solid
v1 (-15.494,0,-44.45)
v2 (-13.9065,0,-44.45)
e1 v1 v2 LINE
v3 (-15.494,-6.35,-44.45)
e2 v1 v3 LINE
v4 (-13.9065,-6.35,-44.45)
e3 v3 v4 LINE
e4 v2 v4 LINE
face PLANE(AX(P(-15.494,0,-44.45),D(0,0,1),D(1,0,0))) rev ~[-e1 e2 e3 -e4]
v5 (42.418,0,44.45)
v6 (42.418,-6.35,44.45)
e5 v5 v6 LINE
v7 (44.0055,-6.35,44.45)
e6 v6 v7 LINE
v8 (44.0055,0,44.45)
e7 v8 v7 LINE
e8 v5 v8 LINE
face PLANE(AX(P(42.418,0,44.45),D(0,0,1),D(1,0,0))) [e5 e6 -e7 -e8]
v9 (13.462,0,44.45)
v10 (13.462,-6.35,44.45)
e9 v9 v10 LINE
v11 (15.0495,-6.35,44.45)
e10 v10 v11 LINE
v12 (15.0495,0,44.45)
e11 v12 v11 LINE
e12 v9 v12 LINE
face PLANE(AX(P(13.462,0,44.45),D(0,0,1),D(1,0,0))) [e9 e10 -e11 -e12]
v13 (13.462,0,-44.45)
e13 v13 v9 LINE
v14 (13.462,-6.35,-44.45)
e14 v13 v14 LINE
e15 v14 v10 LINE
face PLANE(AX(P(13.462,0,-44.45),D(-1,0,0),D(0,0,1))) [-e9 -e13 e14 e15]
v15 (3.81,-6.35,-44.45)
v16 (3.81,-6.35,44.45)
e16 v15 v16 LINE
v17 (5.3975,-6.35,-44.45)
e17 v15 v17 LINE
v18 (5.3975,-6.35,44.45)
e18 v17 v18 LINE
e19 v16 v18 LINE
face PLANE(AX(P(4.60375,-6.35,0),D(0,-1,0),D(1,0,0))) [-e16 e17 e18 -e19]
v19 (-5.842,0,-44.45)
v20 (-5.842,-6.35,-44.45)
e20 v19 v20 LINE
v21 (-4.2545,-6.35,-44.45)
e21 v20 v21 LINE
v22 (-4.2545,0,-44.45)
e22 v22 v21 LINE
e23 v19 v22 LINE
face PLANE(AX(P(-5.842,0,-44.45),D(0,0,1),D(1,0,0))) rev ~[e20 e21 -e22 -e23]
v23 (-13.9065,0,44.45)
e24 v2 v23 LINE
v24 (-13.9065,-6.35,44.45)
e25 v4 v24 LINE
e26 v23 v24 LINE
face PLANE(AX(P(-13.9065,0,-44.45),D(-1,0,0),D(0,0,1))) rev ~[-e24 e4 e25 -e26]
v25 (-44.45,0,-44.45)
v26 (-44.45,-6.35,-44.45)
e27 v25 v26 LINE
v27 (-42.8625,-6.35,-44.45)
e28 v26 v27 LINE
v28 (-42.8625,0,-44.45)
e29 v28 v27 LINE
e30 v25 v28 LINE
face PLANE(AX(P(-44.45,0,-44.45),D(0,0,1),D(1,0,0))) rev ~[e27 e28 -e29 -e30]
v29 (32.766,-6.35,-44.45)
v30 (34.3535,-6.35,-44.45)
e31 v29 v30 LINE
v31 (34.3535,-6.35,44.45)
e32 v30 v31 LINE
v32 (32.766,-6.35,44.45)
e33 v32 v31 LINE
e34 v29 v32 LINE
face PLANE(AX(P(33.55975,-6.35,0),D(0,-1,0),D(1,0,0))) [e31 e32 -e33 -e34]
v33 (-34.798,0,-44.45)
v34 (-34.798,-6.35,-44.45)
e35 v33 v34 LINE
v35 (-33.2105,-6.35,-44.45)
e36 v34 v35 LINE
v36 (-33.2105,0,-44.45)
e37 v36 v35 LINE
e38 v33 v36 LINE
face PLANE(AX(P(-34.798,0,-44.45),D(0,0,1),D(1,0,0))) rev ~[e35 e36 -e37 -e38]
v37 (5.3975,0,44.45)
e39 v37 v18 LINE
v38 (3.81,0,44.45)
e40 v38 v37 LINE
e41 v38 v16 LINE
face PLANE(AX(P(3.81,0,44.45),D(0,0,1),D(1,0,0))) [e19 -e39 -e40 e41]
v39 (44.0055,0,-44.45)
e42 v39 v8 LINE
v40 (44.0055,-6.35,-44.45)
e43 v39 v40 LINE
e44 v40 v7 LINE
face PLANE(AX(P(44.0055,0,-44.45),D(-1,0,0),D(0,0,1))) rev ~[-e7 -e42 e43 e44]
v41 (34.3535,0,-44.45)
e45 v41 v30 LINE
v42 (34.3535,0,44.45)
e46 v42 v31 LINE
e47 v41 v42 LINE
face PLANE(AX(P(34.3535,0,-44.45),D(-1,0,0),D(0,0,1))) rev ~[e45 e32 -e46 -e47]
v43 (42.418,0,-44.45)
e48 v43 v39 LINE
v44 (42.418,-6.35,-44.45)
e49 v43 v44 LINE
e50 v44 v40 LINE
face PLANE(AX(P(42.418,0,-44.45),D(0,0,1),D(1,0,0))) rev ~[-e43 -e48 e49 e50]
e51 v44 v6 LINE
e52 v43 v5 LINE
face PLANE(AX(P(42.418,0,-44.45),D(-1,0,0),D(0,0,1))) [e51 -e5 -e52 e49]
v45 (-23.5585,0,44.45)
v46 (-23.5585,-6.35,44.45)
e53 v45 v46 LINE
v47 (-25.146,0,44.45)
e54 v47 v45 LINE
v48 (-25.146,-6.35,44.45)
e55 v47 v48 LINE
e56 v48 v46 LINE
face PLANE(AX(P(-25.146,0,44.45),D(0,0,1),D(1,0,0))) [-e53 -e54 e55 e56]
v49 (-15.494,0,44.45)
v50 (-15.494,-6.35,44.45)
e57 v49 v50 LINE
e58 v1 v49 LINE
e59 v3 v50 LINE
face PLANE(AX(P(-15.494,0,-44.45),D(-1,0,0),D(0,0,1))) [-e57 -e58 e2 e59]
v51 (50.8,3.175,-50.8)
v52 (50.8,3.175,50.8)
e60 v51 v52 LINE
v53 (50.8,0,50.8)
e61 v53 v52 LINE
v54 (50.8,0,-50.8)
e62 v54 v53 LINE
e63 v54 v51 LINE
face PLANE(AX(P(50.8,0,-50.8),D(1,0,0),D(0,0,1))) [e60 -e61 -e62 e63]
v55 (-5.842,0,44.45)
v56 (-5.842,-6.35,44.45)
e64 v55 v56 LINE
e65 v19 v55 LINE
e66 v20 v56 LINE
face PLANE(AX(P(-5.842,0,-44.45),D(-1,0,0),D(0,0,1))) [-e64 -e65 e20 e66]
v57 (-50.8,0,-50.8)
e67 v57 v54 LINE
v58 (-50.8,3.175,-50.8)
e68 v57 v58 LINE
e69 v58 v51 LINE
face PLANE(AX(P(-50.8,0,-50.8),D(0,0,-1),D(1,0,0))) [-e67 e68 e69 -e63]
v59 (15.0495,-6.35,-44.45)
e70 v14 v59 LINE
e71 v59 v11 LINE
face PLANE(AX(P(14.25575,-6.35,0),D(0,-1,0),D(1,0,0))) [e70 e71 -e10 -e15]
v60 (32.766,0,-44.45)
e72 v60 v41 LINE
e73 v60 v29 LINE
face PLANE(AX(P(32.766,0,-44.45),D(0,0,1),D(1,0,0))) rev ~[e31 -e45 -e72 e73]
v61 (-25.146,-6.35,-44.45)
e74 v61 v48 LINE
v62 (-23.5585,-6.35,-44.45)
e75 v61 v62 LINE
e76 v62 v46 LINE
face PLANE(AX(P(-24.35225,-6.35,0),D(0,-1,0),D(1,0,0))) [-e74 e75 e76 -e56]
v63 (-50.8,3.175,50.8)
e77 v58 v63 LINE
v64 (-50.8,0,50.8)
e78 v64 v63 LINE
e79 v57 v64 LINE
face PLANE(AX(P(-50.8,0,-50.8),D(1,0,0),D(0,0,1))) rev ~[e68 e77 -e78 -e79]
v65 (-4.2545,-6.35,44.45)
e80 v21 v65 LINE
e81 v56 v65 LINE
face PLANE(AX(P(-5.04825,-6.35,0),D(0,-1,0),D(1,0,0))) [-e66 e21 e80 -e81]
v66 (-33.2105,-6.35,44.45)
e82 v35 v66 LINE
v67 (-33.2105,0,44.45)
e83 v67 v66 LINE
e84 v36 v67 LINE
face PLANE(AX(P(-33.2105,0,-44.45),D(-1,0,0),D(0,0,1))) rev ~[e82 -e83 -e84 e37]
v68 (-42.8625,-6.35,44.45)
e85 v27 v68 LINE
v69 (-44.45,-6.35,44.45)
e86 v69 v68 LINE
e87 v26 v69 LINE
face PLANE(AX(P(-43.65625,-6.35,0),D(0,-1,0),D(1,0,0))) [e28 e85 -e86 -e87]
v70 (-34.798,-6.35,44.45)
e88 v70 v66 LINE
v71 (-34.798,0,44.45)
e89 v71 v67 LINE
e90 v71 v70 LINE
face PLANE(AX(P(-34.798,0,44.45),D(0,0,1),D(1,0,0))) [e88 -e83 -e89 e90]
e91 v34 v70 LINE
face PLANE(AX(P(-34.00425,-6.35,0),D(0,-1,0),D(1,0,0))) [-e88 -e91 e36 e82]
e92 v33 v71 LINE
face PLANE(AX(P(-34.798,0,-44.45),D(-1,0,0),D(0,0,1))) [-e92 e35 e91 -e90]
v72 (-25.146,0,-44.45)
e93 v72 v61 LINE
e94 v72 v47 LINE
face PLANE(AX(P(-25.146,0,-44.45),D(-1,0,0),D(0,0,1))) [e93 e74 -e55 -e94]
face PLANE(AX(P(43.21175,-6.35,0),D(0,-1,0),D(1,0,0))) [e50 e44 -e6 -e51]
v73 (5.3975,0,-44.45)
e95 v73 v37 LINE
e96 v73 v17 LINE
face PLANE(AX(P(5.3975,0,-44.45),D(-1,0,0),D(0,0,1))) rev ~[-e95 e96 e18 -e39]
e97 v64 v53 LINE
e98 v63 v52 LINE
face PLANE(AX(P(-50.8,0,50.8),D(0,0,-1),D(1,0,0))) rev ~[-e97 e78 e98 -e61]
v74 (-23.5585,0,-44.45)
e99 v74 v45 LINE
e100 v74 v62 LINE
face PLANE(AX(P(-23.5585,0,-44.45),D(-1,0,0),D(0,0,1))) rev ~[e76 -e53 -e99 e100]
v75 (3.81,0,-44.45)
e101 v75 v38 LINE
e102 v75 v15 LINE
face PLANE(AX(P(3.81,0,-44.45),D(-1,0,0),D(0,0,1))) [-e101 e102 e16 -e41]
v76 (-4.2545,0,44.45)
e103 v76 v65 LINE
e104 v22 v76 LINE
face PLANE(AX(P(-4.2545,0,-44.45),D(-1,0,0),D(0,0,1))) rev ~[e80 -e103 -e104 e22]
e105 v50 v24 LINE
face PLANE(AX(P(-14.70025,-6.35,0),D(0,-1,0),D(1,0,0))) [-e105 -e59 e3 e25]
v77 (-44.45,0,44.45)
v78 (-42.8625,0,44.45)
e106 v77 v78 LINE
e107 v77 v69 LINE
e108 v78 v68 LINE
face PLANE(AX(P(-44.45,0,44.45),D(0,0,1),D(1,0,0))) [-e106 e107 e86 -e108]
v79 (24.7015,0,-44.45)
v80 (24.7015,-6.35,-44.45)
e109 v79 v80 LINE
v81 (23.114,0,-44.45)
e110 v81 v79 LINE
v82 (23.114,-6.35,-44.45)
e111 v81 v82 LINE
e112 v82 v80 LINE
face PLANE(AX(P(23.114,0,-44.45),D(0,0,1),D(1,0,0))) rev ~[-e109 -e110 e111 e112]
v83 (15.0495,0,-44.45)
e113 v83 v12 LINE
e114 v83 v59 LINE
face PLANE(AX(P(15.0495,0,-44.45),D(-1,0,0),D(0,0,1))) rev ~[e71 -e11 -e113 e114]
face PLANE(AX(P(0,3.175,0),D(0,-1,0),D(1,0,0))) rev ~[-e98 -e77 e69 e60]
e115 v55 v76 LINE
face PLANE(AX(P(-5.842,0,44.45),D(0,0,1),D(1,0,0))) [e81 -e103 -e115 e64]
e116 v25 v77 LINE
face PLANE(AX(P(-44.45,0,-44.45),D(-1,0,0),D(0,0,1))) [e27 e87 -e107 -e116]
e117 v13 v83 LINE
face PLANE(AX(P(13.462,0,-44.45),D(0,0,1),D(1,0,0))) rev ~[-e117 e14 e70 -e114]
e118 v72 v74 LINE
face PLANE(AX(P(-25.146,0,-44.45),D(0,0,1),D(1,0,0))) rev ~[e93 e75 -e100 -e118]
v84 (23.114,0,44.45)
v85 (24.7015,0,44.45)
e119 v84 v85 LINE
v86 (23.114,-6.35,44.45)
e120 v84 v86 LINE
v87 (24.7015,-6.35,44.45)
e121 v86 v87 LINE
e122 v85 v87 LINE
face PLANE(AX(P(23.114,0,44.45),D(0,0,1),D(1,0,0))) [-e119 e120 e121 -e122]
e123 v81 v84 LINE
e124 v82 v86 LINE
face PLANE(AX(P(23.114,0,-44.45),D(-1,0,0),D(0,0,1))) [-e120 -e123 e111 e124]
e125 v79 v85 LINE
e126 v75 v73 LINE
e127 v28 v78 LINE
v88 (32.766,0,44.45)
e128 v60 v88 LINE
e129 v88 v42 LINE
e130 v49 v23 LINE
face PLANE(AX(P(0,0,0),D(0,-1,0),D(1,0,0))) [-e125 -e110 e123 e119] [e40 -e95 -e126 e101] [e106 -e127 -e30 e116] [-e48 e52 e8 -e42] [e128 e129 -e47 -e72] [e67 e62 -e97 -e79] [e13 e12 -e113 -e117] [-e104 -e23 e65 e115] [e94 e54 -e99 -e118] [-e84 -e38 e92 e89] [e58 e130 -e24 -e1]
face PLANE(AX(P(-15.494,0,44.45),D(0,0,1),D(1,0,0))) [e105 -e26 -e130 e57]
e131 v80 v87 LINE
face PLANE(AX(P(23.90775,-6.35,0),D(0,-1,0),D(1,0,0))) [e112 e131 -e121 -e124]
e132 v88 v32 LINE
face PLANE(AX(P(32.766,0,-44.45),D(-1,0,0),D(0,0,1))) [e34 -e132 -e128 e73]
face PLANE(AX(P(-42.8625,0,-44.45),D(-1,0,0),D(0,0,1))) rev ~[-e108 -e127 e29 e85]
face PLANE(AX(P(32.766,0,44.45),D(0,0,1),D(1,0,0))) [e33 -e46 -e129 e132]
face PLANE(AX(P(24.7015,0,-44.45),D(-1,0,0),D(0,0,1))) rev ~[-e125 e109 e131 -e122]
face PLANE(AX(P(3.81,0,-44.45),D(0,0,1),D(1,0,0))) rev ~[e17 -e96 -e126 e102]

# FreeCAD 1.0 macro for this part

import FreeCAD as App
import Part
import Sketcher
from FreeCAD import Vector
Q = App.Units.Quantity

doc = App.newDocument("Part")
params = doc.addObject("Spreadsheet::Sheet", "Params")
for row, (alias, value) in enumerate([
    ("sketch1_width", "4 in"),
    ("pad1_length", "0.125 in"),
    ("sketch2_height", "3.5 in"),
    ("sketch2_width", "0.0625 in"),
    ("pad2_length", "0.25 in"),
], start=1):
    params.set(f"A{row}", alias)
    params.set(f"B{row}", "=" + value)
    params.setAlias(f"B{row}", alias)

body = doc.addObject("PartDesign::Body", "Body")

sketch1 = body.newObject("Sketcher::SketchObject", "Sketch")
sketch1.AttachmentSupport = (doc.getObject("XZ_Plane"), [""])
sketch1.MapMode = "FlatFace"
sketch1.addGeometry([
    Part.LineSegment(Vector(-51, 51, 0), Vector(-51, -51, 0)),
    Part.LineSegment(Vector(-51, -51, 0), Vector(51, -51, 0)),
    Part.LineSegment(Vector(51, -51, 0), Vector(51, 51, 0)),
    Part.LineSegment(Vector(51, 51, 0), Vector(-51, 51, 0)),
], False)
sketch1.addConstraint([
    Sketcher.Constraint("Coincident", 0, 2, 1, 1),
    Sketcher.Constraint("Coincident", 1, 2, 2, 1),
    Sketcher.Constraint("Coincident", 2, 2, 3, 1),
    Sketcher.Constraint("Coincident", 3, 2, 0, 1),
    Sketcher.Constraint("Vertical", 0),
    Sketcher.Constraint("Horizontal", 1),
    Sketcher.Constraint("Vertical", 2),
    Sketcher.Constraint("Horizontal", 3),
    Sketcher.Constraint("Symmetric", 0, 2, 2, 2, -1, 1),
    Sketcher.Constraint("Equal", 3, 0),
    Sketcher.Constraint("DistanceX", 1, 1, 1, 2, Q("4 in")),
])
sketch1.setExpression("Constraints[10]", "Params.sketch1_width")
pad1 = body.newObject("PartDesign::Pad", "Pad")
pad1.Profile = sketch1
pad1.setExpression("Length", "Params.pad1_length")
pad1.Reversed = True

sketch2 = body.newObject("Sketcher::SketchObject", "Sketch001")
sketch2.AttachmentSupport = (doc.getObject("XZ_Plane"), [""])
sketch2.MapMode = "FlatFace"
sketch2.addGeometry([
    Part.LineSegment(Vector(-44.5, 44.5, 0), Vector(-44.5, -44.5, 0)),
    Part.LineSegment(Vector(-44.5, -44.5, 0), Vector(-42.9, -44.5, 0)),
    Part.LineSegment(Vector(-42.9, -44.5, 0), Vector(-42.9, 44.5, 0)),
    Part.LineSegment(Vector(-42.9, 44.5, 0), Vector(-44.5, 44.5, 0)),
    Part.LineSegment(Vector(-34.8, 44.5, 0), Vector(-34.8, -44.5, 0)),
    Part.LineSegment(Vector(-34.8, -44.5, 0), Vector(-33.2, -44.5, 0)),
    Part.LineSegment(Vector(-33.2, -44.5, 0), Vector(-33.2, 44.5, 0)),
    Part.LineSegment(Vector(-33.2, 44.5, 0), Vector(-34.8, 44.5, 0)),
    Part.LineSegment(Vector(-25.1, 44.5, 0), Vector(-25.1, -44.5, 0)),
    Part.LineSegment(Vector(-25.1, -44.5, 0), Vector(-23.6, -44.5, 0)),
    Part.LineSegment(Vector(-23.6, -44.5, 0), Vector(-23.6, 44.5, 0)),
    Part.LineSegment(Vector(-23.6, 44.5, 0), Vector(-25.1, 44.5, 0)),
    Part.LineSegment(Vector(-15.5, 44.5, 0), Vector(-15.5, -44.5, 0)),
    Part.LineSegment(Vector(-15.5, -44.5, 0), Vector(-13.9, -44.5, 0)),
    Part.LineSegment(Vector(-13.9, -44.5, 0), Vector(-13.9, 44.5, 0)),
    Part.LineSegment(Vector(-13.9, 44.5, 0), Vector(-15.5, 44.5, 0)),
    Part.LineSegment(Vector(-5.8, 44.5, 0), Vector(-5.8, -44.5, 0)),
    Part.LineSegment(Vector(-5.8, -44.5, 0), Vector(-4.3, -44.5, 0)),
    Part.LineSegment(Vector(-4.3, -44.5, 0), Vector(-4.3, 44.5, 0)),
    Part.LineSegment(Vector(-4.3, 44.5, 0), Vector(-5.8, 44.5, 0)),
    Part.LineSegment(Vector(3.8, 44.5, 0), Vector(3.8, -44.5, 0)),
    Part.LineSegment(Vector(3.8, -44.5, 0), Vector(5.4, -44.5, 0)),
    Part.LineSegment(Vector(5.4, -44.5, 0), Vector(5.4, 44.5, 0)),
    Part.LineSegment(Vector(5.4, 44.5, 0), Vector(3.8, 44.5, 0)),
    Part.LineSegment(Vector(13.5, 44.5, 0), Vector(13.5, -44.5, 0)),
    Part.LineSegment(Vector(13.5, -44.5, 0), Vector(15, -44.5, 0)),
    Part.LineSegment(Vector(15, -44.5, 0), Vector(15, 44.5, 0)),
    Part.LineSegment(Vector(15, 44.5, 0), Vector(13.5, 44.5, 0)),
    Part.LineSegment(Vector(23.1, 44.5, 0), Vector(23.1, -44.5, 0)),
    Part.LineSegment(Vector(23.1, -44.5, 0), Vector(24.7, -44.5, 0)),
    Part.LineSegment(Vector(24.7, -44.5, 0), Vector(24.7, 44.5, 0)),
    Part.LineSegment(Vector(24.7, 44.5, 0), Vector(23.1, 44.5, 0)),
    Part.LineSegment(Vector(32.8, 44.5, 0), Vector(32.8, -44.5, 0)),
    Part.LineSegment(Vector(32.8, -44.5, 0), Vector(34.4, -44.5, 0)),
    Part.LineSegment(Vector(34.4, -44.5, 0), Vector(34.4, 44.5, 0)),
    Part.LineSegment(Vector(34.4, 44.5, 0), Vector(32.8, 44.5, 0)),
    Part.LineSegment(Vector(42.4, 44.5, 0), Vector(42.4, -44.5, 0)),
    Part.LineSegment(Vector(42.4, -44.5, 0), Vector(44, -44.5, 0)),
    Part.LineSegment(Vector(44, -44.5, 0), Vector(44, 44.5, 0)),
    Part.LineSegment(Vector(44, 44.5, 0), Vector(42.4, 44.5, 0)),
], False)
sketch2.addConstraint([
    Sketcher.Constraint("Coincident", 0, 2, 1, 1),
    Sketcher.Constraint("Coincident", 1, 2, 2, 1),
    Sketcher.Constraint("Coincident", 2, 2, 3, 1),
    Sketcher.Constraint("Coincident", 3, 2, 0, 1),
    Sketcher.Constraint("Coincident", 4, 2, 5, 1),
    Sketcher.Constraint("Coincident", 5, 2, 6, 1),
    Sketcher.Constraint("Coincident", 6, 2, 7, 1),
    Sketcher.Constraint("Coincident", 7, 2, 4, 1),
    Sketcher.Constraint("Coincident", 8, 2, 9, 1),
    Sketcher.Constraint("Coincident", 9, 2, 10, 1),
    Sketcher.Constraint("Coincident", 10, 2, 11, 1),
    Sketcher.Constraint("Coincident", 11, 2, 8, 1),
    Sketcher.Constraint("Coincident", 12, 2, 13, 1),
    Sketcher.Constraint("Coincident", 13, 2, 14, 1),
    Sketcher.Constraint("Coincident", 14, 2, 15, 1),
    Sketcher.Constraint("Coincident", 15, 2, 12, 1),
    Sketcher.Constraint("Coincident", 16, 2, 17, 1),
    Sketcher.Constraint("Coincident", 17, 2, 18, 1),
    Sketcher.Constraint("Coincident", 18, 2, 19, 1),
    Sketcher.Constraint("Coincident", 19, 2, 16, 1),
    Sketcher.Constraint("Coincident", 20, 2, 21, 1),
    Sketcher.Constraint("Coincident", 21, 2, 22, 1),
    Sketcher.Constraint("Coincident", 22, 2, 23, 1),
    Sketcher.Constraint("Coincident", 23, 2, 20, 1),
    Sketcher.Constraint("Coincident", 24, 2, 25, 1),
    Sketcher.Constraint("Coincident", 25, 2, 26, 1),
    Sketcher.Constraint("Coincident", 26, 2, 27, 1),
    Sketcher.Constraint("Coincident", 27, 2, 24, 1),
    Sketcher.Constraint("Coincident", 28, 2, 29, 1),
    Sketcher.Constraint("Coincident", 29, 2, 30, 1),
    Sketcher.Constraint("Coincident", 30, 2, 31, 1),
    Sketcher.Constraint("Coincident", 31, 2, 28, 1),
    Sketcher.Constraint("Coincident", 32, 2, 33, 1),
    Sketcher.Constraint("Coincident", 33, 2, 34, 1),
    Sketcher.Constraint("Coincident", 34, 2, 35, 1),
    Sketcher.Constraint("Coincident", 35, 2, 32, 1),
    Sketcher.Constraint("Coincident", 36, 2, 37, 1),
    Sketcher.Constraint("Coincident", 37, 2, 38, 1),
    Sketcher.Constraint("Coincident", 38, 2, 39, 1),
    Sketcher.Constraint("Coincident", 39, 2, 36, 1),
    Sketcher.Constraint("Vertical", 0),
    Sketcher.Constraint("Horizontal", 1),
    Sketcher.Constraint("Vertical", 2),
    Sketcher.Constraint("Horizontal", 3),
    Sketcher.Constraint("Vertical", 4),
    Sketcher.Constraint("Horizontal", 5),
    Sketcher.Constraint("Vertical", 6),
    Sketcher.Constraint("Horizontal", 7),
    Sketcher.Constraint("Vertical", 8),
    Sketcher.Constraint("Horizontal", 9),
    Sketcher.Constraint("Vertical", 10),
    Sketcher.Constraint("Horizontal", 11),
    Sketcher.Constraint("Vertical", 12),
    Sketcher.Constraint("Horizontal", 13),
    Sketcher.Constraint("Vertical", 14),
    Sketcher.Constraint("Horizontal", 15),
    Sketcher.Constraint("Vertical", 16),
    Sketcher.Constraint("Horizontal", 17),
    Sketcher.Constraint("Vertical", 18),
    Sketcher.Constraint("Horizontal", 19),
    Sketcher.Constraint("Vertical", 20),
    Sketcher.Constraint("Horizontal", 21),
    Sketcher.Constraint("Vertical", 22),
    Sketcher.Constraint("Horizontal", 23),
    Sketcher.Constraint("Vertical", 24),
    Sketcher.Constraint("Horizontal", 25),
    Sketcher.Constraint("Vertical", 26),
    Sketcher.Constraint("Horizontal", 27),
    Sketcher.Constraint("Vertical", 28),
    Sketcher.Constraint("Horizontal", 29),
    Sketcher.Constraint("Vertical", 30),
    Sketcher.Constraint("Horizontal", 31),
    Sketcher.Constraint("Vertical", 32),
    Sketcher.Constraint("Horizontal", 33),
    Sketcher.Constraint("Vertical", 34),
    Sketcher.Constraint("Horizontal", 35),
    Sketcher.Constraint("Vertical", 36),
    Sketcher.Constraint("Horizontal", 37),
    Sketcher.Constraint("Vertical", 38),
    Sketcher.Constraint("Horizontal", 39),
    Sketcher.Constraint("Horizontal", 1, 2, 4, 2),
    Sketcher.Constraint("Horizontal", 3, 2, 6, 2),
    Sketcher.Constraint("Horizontal", 5, 2, 8, 2),
    Sketcher.Constraint("Horizontal", 7, 2, 10, 2),
    Sketcher.Constraint("Horizontal", 9, 2, 12, 2),
    Sketcher.Constraint("Horizontal", 11, 2, 14, 2),
    Sketcher.Constraint("Horizontal", 13, 2, 16, 2),
    Sketcher.Constraint("Horizontal", 15, 2, 18, 2),
    Sketcher.Constraint("Horizontal", 17, 2, 20, 2),
    Sketcher.Constraint("Horizontal", 19, 2, 22, 2),
    Sketcher.Constraint("Horizontal", 21, 2, 24, 2),
    Sketcher.Constraint("Horizontal", 23, 2, 26, 2),
    Sketcher.Constraint("Horizontal", 25, 2, 28, 2),
    Sketcher.Constraint("Horizontal", 27, 2, 30, 2),
    Sketcher.Constraint("Horizontal", 29, 2, 32, 2),
    Sketcher.Constraint("Horizontal", 31, 2, 34, 2),
    Sketcher.Constraint("Horizontal", 33, 2, 36, 2),
    Sketcher.Constraint("Horizontal", 35, 2, 38, 2),
    Sketcher.Constraint("Equal", 3, 5),
    Sketcher.Constraint("Equal", 7, 9),
    Sketcher.Constraint("Equal", 11, 13),
    Sketcher.Constraint("Equal", 15, 17),
    Sketcher.Constraint("Equal", 19, 21),
    Sketcher.Constraint("Equal", 23, 25),
    Sketcher.Constraint("Equal", 27, 29),
    Sketcher.Constraint("Equal", 31, 33),
    Sketcher.Constraint("Equal", 35, 37),
    Sketcher.Constraint("DistanceY", 0, 2, 0, 1, Q("3.5 in")),
    Sketcher.Constraint("DistanceX", 1, 1, 1, 2, Q("0.0625 in")),
    Sketcher.Constraint("DistanceX", 0, 2, -1, 1, Q("1.75 in")),
    Sketcher.Constraint("DistanceY", 0, 2, -1, 1, Q("1.75 in")),
    Sketcher.Constraint("DistanceX", 4, 2, -1, 1, Q("1.37 in")),
    Sketcher.Constraint("DistanceX", 8, 2, -1, 1, Q("0.99 in")),
    Sketcher.Constraint("DistanceX", 12, 2, -1, 1, Q("0.61 in")),
    Sketcher.Constraint("DistanceX", 16, 2, -1, 1, Q("0.23 in")),
    Sketcher.Constraint("DistanceX", -1, 1, 20, 2, Q("0.15 in")),
    Sketcher.Constraint("DistanceX", -1, 1, 24, 2, Q("0.53 in")),
    Sketcher.Constraint("DistanceX", -1, 1, 28, 2, Q("0.91 in")),
    Sketcher.Constraint("DistanceX", -1, 1, 32, 2, Q("1.29 in")),
    Sketcher.Constraint("DistanceX", -1, 1, 36, 2, Q("1.67 in")),
])
sketch2.setExpression("Constraints[107]", "Params.sketch2_height")
sketch2.setExpression("Constraints[108]", "Params.sketch2_width")
pad2 = body.newObject("PartDesign::Pad", "Pad001")
pad2.Profile = sketch2
pad2.setExpression("Length", "Params.pad2_length")

doc.recompute()
